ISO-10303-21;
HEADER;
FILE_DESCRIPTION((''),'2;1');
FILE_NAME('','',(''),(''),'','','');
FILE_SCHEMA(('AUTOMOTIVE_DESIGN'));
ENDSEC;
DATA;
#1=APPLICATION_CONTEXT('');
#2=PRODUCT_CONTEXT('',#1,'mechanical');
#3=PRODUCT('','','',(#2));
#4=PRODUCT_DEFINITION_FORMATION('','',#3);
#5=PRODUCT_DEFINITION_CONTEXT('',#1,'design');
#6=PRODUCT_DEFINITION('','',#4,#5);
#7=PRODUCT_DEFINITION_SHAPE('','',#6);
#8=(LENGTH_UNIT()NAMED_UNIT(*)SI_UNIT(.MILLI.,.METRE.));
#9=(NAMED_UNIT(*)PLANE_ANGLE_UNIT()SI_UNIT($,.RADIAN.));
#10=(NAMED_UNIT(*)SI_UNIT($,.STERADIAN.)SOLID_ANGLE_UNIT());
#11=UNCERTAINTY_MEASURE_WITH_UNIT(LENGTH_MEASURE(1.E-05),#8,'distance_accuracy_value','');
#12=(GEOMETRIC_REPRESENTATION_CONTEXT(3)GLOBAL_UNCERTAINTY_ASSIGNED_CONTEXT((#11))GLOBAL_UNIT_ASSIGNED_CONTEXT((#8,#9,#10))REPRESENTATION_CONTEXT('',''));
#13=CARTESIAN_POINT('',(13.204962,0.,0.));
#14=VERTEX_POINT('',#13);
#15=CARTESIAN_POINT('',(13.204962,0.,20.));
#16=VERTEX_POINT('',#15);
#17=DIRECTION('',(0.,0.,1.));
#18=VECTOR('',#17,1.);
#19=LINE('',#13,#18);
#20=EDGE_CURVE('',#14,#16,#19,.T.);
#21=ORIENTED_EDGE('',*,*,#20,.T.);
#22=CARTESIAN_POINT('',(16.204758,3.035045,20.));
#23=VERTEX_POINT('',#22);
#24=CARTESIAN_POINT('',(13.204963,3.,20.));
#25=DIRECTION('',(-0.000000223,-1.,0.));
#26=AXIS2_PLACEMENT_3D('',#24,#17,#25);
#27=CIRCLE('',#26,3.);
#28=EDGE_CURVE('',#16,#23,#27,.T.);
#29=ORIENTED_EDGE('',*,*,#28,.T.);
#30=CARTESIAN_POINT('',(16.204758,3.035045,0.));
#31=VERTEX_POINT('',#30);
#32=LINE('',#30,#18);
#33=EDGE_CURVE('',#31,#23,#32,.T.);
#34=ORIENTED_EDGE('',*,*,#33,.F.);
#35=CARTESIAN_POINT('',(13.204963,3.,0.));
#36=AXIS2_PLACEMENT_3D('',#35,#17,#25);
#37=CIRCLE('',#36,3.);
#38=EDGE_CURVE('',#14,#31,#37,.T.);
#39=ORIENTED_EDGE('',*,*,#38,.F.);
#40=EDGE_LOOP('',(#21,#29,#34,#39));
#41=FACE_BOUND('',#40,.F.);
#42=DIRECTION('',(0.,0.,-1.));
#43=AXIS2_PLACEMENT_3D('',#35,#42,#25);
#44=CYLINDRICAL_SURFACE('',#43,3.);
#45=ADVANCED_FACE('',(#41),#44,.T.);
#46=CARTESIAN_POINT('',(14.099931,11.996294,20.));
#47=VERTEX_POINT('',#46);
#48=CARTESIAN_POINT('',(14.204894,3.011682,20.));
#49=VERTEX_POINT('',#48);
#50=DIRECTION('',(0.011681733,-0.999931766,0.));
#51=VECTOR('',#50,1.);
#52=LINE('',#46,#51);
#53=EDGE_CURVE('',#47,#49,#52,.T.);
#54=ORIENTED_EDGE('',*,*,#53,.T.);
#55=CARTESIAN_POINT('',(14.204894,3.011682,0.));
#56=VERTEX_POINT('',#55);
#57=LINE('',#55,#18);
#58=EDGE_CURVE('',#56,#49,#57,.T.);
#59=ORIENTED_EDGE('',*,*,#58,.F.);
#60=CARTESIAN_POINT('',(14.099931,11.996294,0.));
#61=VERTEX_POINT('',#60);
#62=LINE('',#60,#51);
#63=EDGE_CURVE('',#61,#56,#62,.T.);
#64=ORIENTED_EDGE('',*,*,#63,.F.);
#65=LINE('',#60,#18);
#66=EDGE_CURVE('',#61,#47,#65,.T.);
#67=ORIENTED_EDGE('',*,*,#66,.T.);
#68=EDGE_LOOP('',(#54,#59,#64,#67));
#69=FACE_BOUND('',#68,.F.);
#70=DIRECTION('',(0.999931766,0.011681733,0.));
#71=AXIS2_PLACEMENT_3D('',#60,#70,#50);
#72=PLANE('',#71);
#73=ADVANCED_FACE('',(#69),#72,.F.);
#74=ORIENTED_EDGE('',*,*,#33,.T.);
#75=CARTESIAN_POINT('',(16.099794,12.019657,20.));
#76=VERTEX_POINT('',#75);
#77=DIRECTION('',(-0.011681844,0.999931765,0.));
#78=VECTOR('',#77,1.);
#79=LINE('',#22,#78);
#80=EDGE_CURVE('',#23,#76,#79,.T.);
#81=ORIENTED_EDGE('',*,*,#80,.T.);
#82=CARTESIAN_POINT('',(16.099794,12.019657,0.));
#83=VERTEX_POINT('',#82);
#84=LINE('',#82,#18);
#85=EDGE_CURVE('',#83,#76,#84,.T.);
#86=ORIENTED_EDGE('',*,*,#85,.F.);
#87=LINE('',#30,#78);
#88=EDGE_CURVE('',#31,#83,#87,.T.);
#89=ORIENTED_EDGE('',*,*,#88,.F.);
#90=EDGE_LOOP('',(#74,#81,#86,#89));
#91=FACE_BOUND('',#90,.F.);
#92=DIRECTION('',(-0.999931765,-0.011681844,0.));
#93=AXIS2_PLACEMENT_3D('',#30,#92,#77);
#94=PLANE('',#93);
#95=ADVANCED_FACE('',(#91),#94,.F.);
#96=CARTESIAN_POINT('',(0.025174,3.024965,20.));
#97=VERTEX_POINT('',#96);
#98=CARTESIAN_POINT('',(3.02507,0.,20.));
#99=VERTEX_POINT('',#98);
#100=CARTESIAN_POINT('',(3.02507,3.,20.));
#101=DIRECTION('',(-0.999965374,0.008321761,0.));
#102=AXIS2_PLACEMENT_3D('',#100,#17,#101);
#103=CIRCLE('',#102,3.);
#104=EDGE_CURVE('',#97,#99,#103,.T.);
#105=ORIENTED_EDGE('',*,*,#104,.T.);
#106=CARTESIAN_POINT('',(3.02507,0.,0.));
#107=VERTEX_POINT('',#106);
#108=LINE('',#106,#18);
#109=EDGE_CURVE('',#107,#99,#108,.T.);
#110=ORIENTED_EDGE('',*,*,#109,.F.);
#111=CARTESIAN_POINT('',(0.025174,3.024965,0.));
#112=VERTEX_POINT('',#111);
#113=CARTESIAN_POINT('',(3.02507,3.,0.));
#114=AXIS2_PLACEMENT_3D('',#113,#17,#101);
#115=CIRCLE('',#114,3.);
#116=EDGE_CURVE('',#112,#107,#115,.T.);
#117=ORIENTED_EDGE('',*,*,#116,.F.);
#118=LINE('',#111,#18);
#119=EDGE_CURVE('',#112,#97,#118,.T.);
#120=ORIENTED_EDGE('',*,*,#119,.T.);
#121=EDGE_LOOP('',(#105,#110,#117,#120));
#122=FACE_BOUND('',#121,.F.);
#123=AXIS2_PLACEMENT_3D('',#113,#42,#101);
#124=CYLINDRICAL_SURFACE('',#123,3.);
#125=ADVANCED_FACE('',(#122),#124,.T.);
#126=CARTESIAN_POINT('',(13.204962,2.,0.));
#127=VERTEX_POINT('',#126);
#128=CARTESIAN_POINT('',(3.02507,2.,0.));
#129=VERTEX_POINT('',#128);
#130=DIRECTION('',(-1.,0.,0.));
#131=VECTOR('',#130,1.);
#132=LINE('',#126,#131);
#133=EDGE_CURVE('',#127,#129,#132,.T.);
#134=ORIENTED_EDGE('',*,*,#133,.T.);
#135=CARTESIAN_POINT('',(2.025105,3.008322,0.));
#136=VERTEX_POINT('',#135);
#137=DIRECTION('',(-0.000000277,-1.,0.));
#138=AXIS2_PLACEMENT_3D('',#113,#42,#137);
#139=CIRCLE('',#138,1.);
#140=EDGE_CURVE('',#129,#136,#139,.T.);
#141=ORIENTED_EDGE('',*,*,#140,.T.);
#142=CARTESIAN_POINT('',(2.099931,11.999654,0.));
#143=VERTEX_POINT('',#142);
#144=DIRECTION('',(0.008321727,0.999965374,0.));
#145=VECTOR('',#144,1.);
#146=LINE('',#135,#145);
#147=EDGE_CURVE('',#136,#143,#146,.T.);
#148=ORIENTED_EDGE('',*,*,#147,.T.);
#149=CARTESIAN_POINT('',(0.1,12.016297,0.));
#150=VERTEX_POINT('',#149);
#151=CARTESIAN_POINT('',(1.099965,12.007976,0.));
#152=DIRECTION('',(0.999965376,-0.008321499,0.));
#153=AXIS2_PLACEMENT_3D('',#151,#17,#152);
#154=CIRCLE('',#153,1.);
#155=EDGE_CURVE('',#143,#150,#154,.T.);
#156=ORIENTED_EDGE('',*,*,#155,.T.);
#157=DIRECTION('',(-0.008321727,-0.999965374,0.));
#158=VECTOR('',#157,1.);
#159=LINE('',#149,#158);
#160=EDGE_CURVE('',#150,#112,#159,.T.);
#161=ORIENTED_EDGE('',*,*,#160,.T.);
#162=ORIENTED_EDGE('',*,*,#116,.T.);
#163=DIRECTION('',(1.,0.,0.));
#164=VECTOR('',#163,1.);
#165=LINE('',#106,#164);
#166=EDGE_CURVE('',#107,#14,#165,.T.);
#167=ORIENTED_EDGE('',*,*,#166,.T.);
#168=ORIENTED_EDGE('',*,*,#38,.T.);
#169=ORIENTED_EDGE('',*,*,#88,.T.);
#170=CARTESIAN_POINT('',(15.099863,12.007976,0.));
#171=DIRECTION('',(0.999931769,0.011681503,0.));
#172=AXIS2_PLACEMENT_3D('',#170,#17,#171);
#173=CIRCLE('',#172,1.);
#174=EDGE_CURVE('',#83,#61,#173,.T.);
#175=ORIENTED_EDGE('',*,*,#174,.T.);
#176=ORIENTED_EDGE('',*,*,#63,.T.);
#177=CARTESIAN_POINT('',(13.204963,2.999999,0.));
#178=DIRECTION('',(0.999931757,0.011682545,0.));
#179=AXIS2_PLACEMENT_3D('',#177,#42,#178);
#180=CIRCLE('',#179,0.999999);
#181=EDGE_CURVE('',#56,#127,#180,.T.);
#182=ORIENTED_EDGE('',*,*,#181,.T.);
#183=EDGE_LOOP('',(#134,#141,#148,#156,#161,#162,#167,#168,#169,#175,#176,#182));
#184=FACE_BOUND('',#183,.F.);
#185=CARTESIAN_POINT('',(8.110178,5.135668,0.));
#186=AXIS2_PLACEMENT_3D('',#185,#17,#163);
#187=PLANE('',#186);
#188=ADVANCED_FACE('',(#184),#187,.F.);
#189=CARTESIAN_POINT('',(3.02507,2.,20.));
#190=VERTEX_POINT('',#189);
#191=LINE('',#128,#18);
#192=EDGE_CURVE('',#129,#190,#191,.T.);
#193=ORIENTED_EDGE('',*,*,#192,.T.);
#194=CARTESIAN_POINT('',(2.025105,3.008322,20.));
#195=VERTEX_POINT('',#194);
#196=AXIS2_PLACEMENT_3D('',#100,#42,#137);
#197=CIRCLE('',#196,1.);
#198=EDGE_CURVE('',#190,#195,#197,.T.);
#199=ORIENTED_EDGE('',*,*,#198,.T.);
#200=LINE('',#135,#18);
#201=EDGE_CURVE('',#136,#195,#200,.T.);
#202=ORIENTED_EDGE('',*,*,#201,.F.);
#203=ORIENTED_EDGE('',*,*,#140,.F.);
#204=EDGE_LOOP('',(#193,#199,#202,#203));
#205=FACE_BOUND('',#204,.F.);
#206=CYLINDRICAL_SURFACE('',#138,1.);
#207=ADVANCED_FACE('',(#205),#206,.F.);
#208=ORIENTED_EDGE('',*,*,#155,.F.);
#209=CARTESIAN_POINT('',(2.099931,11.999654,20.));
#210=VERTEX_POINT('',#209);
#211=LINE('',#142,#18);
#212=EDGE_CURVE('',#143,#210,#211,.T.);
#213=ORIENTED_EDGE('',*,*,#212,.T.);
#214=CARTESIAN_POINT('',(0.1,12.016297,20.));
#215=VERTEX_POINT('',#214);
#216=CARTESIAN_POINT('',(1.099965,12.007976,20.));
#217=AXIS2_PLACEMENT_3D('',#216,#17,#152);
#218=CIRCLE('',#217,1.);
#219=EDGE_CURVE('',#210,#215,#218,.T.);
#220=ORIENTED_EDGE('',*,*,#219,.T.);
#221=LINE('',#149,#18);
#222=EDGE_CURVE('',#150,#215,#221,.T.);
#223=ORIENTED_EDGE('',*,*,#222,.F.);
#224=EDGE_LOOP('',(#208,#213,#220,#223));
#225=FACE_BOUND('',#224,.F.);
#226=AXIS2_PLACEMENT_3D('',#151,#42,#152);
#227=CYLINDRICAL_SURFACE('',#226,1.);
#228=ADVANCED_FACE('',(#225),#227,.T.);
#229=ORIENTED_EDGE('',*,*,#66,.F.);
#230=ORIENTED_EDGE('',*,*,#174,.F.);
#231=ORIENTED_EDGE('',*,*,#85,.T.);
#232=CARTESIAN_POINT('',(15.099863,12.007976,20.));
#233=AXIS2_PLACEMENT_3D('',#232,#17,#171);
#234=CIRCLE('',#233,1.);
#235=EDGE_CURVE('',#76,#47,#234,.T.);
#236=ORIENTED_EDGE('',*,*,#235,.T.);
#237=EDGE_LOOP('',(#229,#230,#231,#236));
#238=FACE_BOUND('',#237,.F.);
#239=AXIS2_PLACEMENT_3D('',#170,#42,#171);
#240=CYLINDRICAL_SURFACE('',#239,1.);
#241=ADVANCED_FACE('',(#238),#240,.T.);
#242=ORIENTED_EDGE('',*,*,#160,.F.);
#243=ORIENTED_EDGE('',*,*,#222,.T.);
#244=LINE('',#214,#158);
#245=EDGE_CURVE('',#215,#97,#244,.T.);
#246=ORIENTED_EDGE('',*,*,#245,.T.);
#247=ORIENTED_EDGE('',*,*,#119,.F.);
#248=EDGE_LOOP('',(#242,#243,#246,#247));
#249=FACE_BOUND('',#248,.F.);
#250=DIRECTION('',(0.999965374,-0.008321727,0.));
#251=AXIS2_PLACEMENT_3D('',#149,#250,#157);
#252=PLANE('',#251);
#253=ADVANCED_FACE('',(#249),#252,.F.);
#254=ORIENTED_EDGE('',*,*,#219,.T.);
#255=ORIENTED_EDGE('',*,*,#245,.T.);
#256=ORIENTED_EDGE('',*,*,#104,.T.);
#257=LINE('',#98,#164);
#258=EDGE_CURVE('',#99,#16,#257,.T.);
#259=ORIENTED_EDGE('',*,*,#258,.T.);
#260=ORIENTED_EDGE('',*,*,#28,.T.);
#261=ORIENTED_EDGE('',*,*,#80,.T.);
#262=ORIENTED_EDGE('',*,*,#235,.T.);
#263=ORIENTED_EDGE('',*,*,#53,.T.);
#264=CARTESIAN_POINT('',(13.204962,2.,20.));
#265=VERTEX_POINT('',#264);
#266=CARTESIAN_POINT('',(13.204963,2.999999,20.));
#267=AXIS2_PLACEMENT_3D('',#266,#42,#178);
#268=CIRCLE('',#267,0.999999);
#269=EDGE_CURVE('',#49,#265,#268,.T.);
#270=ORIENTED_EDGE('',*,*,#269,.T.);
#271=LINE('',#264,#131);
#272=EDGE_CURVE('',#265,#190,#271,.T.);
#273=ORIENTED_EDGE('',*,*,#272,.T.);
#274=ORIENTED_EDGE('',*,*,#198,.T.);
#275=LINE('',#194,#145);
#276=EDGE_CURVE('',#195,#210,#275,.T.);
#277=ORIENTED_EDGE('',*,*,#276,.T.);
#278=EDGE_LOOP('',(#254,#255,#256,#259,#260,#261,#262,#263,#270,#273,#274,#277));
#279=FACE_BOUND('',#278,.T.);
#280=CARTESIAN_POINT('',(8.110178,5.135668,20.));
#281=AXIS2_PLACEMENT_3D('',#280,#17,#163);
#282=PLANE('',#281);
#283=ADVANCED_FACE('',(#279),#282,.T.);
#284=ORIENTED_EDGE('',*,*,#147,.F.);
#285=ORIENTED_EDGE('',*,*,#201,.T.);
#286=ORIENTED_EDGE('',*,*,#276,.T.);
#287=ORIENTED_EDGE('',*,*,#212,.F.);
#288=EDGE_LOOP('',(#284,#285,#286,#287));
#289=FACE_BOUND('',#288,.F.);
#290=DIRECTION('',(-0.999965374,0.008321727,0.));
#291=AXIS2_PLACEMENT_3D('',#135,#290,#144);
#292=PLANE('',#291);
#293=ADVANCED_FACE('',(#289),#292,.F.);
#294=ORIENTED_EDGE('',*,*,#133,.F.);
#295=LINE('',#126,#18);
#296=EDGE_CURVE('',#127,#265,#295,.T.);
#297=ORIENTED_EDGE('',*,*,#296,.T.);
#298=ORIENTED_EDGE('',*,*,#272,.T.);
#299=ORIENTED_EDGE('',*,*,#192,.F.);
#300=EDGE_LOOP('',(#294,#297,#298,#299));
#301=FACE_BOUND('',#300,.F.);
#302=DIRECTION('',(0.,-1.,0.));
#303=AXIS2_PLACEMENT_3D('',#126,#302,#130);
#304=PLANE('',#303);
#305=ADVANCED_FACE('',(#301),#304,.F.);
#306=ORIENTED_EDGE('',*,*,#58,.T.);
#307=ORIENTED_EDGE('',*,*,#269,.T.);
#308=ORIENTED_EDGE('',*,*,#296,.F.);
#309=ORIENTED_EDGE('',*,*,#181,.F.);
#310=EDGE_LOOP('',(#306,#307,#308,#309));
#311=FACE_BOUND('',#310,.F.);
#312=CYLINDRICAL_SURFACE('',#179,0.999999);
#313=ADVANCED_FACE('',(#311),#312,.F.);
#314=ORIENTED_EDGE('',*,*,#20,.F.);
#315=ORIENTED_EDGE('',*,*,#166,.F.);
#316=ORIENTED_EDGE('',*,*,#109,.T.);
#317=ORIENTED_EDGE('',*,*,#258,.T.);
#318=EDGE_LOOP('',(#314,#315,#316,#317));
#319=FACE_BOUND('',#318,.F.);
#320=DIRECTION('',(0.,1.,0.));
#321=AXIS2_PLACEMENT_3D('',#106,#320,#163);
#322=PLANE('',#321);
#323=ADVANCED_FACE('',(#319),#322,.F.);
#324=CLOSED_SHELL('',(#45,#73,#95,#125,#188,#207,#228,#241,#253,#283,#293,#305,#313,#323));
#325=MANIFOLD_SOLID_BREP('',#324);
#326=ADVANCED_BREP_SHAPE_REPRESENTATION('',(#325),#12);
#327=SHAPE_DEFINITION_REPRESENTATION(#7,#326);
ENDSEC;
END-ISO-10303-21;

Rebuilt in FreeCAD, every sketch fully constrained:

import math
import FreeCAD as App
import Part
import Sketcher

V = App.Vector

doc = App.newDocument("Part")
body = doc.addObject("PartDesign::Body", "Body")

# Sketch on XY plane
sketch1 = body.newObject("Sketcher::SketchObject", "Sketch")
sketch1.AttachmentSupport = (doc.getObject("XY_Plane"), [""])
sketch1.MapMode = "FlatFace"
sketch1.addGeometry([
    Part.ArcOfCircle(Part.Circle(V(1.1, 12, 0), V(0, 0, 1), 1), math.radians(0), math.radians(180)),  # 0
    Part.LineSegment(V(0.1, 12, 0), V(0, 3, 0)),  # 1
    Part.ArcOfCircle(Part.Circle(V(3, 3, 0), V(0, 0, 1), 3), math.radians(180), math.radians(270)),  # 2
    Part.LineSegment(V(3, 0, 0), V(13.2, 0, 0)),  # 3
    Part.ArcOfCircle(Part.Circle(V(13.2, 3, 0), V(0, 0, 1), 3), math.radians(-90), math.radians(1)),  # 4
    Part.LineSegment(V(16.2, 3, 0), V(16.1, 12, 0)),  # 5
    Part.ArcOfCircle(Part.Circle(V(15.1, 12, 0), V(0, 0, 1), 1), math.radians(1), math.radians(181)),  # 6
    Part.LineSegment(V(14.1, 12, 0), V(14.2, 3, 0)),  # 7
    Part.ArcOfCircle(Part.Circle(V(13.2, 3, 0), V(0, 0, 1), 1), math.radians(-90), math.radians(1)),  # 8
    Part.LineSegment(V(13.2, 2, 0), V(3, 2, 0)),  # 9
    Part.ArcOfCircle(Part.Circle(V(3, 3, 0), V(0, 0, 1), 1), math.radians(180), math.radians(270)),  # 10
    Part.LineSegment(V(2, 3, 0), V(2.1, 12, 0)),  # 11
], False)
sketch1.addConstraint([
    Sketcher.Constraint("Tangent", 0, 2, 1, 1),
    Sketcher.Constraint("Tangent", 1, 2, 2, 1),
    Sketcher.Constraint("Tangent", 2, 2, 3, 1),
    Sketcher.Constraint("Tangent", 3, 2, 4, 1),
    Sketcher.Constraint("Tangent", 4, 2, 5, 1),
    Sketcher.Constraint("Tangent", 5, 2, 6, 1),
    Sketcher.Constraint("Tangent", 6, 2, 7, 1),
    Sketcher.Constraint("Tangent", 7, 2, 8, 2),
    Sketcher.Constraint("Tangent", 8, 1, 9, 1),
    Sketcher.Constraint("Tangent", 9, 2, 10, 2),
    Sketcher.Constraint("Tangent", 10, 1, 11, 1),
    Sketcher.Constraint("Tangent", 11, 2, 0, 1),
    Sketcher.Constraint("Horizontal", 3),
    Sketcher.Constraint("Horizontal", 9),
    Sketcher.Constraint("Coincident", 8, 3, 4, 3),
    Sketcher.Constraint("Coincident", 10, 3, 2, 3),
    Sketcher.Constraint("Equal", 2, 4),
    Sketcher.Constraint("Equal", 0, 6),
    Sketcher.Constraint("Equal", 6, 8),
    Sketcher.Constraint("PointOnObject", 2, 2, -1),
    Sketcher.Constraint("Parallel", 5, 7),
    Sketcher.Constraint("Horizontal", 0, 3, 6, 3),
    Sketcher.Constraint("Radius", 0, 1.0),
    Sketcher.Constraint("DistanceX", -1, 1, 0, 2, 0.1),
    Sketcher.Constraint("DistanceX", 4, 3, 6, 3, 1.8949),
    Sketcher.Constraint("DistanceX", 3, 1, 3, 2, 10.179892),
    Sketcher.Constraint("DistanceX", -1, 1, 2, 3, 3.02507),
    Sketcher.Constraint("DistanceY", 1, 2, 0, 2, 8.991332),
])
pad1 = body.newObject("PartDesign::Pad", "Pad")
pad1.Profile = sketch1
pad1.Length = 20

doc.recompute()
